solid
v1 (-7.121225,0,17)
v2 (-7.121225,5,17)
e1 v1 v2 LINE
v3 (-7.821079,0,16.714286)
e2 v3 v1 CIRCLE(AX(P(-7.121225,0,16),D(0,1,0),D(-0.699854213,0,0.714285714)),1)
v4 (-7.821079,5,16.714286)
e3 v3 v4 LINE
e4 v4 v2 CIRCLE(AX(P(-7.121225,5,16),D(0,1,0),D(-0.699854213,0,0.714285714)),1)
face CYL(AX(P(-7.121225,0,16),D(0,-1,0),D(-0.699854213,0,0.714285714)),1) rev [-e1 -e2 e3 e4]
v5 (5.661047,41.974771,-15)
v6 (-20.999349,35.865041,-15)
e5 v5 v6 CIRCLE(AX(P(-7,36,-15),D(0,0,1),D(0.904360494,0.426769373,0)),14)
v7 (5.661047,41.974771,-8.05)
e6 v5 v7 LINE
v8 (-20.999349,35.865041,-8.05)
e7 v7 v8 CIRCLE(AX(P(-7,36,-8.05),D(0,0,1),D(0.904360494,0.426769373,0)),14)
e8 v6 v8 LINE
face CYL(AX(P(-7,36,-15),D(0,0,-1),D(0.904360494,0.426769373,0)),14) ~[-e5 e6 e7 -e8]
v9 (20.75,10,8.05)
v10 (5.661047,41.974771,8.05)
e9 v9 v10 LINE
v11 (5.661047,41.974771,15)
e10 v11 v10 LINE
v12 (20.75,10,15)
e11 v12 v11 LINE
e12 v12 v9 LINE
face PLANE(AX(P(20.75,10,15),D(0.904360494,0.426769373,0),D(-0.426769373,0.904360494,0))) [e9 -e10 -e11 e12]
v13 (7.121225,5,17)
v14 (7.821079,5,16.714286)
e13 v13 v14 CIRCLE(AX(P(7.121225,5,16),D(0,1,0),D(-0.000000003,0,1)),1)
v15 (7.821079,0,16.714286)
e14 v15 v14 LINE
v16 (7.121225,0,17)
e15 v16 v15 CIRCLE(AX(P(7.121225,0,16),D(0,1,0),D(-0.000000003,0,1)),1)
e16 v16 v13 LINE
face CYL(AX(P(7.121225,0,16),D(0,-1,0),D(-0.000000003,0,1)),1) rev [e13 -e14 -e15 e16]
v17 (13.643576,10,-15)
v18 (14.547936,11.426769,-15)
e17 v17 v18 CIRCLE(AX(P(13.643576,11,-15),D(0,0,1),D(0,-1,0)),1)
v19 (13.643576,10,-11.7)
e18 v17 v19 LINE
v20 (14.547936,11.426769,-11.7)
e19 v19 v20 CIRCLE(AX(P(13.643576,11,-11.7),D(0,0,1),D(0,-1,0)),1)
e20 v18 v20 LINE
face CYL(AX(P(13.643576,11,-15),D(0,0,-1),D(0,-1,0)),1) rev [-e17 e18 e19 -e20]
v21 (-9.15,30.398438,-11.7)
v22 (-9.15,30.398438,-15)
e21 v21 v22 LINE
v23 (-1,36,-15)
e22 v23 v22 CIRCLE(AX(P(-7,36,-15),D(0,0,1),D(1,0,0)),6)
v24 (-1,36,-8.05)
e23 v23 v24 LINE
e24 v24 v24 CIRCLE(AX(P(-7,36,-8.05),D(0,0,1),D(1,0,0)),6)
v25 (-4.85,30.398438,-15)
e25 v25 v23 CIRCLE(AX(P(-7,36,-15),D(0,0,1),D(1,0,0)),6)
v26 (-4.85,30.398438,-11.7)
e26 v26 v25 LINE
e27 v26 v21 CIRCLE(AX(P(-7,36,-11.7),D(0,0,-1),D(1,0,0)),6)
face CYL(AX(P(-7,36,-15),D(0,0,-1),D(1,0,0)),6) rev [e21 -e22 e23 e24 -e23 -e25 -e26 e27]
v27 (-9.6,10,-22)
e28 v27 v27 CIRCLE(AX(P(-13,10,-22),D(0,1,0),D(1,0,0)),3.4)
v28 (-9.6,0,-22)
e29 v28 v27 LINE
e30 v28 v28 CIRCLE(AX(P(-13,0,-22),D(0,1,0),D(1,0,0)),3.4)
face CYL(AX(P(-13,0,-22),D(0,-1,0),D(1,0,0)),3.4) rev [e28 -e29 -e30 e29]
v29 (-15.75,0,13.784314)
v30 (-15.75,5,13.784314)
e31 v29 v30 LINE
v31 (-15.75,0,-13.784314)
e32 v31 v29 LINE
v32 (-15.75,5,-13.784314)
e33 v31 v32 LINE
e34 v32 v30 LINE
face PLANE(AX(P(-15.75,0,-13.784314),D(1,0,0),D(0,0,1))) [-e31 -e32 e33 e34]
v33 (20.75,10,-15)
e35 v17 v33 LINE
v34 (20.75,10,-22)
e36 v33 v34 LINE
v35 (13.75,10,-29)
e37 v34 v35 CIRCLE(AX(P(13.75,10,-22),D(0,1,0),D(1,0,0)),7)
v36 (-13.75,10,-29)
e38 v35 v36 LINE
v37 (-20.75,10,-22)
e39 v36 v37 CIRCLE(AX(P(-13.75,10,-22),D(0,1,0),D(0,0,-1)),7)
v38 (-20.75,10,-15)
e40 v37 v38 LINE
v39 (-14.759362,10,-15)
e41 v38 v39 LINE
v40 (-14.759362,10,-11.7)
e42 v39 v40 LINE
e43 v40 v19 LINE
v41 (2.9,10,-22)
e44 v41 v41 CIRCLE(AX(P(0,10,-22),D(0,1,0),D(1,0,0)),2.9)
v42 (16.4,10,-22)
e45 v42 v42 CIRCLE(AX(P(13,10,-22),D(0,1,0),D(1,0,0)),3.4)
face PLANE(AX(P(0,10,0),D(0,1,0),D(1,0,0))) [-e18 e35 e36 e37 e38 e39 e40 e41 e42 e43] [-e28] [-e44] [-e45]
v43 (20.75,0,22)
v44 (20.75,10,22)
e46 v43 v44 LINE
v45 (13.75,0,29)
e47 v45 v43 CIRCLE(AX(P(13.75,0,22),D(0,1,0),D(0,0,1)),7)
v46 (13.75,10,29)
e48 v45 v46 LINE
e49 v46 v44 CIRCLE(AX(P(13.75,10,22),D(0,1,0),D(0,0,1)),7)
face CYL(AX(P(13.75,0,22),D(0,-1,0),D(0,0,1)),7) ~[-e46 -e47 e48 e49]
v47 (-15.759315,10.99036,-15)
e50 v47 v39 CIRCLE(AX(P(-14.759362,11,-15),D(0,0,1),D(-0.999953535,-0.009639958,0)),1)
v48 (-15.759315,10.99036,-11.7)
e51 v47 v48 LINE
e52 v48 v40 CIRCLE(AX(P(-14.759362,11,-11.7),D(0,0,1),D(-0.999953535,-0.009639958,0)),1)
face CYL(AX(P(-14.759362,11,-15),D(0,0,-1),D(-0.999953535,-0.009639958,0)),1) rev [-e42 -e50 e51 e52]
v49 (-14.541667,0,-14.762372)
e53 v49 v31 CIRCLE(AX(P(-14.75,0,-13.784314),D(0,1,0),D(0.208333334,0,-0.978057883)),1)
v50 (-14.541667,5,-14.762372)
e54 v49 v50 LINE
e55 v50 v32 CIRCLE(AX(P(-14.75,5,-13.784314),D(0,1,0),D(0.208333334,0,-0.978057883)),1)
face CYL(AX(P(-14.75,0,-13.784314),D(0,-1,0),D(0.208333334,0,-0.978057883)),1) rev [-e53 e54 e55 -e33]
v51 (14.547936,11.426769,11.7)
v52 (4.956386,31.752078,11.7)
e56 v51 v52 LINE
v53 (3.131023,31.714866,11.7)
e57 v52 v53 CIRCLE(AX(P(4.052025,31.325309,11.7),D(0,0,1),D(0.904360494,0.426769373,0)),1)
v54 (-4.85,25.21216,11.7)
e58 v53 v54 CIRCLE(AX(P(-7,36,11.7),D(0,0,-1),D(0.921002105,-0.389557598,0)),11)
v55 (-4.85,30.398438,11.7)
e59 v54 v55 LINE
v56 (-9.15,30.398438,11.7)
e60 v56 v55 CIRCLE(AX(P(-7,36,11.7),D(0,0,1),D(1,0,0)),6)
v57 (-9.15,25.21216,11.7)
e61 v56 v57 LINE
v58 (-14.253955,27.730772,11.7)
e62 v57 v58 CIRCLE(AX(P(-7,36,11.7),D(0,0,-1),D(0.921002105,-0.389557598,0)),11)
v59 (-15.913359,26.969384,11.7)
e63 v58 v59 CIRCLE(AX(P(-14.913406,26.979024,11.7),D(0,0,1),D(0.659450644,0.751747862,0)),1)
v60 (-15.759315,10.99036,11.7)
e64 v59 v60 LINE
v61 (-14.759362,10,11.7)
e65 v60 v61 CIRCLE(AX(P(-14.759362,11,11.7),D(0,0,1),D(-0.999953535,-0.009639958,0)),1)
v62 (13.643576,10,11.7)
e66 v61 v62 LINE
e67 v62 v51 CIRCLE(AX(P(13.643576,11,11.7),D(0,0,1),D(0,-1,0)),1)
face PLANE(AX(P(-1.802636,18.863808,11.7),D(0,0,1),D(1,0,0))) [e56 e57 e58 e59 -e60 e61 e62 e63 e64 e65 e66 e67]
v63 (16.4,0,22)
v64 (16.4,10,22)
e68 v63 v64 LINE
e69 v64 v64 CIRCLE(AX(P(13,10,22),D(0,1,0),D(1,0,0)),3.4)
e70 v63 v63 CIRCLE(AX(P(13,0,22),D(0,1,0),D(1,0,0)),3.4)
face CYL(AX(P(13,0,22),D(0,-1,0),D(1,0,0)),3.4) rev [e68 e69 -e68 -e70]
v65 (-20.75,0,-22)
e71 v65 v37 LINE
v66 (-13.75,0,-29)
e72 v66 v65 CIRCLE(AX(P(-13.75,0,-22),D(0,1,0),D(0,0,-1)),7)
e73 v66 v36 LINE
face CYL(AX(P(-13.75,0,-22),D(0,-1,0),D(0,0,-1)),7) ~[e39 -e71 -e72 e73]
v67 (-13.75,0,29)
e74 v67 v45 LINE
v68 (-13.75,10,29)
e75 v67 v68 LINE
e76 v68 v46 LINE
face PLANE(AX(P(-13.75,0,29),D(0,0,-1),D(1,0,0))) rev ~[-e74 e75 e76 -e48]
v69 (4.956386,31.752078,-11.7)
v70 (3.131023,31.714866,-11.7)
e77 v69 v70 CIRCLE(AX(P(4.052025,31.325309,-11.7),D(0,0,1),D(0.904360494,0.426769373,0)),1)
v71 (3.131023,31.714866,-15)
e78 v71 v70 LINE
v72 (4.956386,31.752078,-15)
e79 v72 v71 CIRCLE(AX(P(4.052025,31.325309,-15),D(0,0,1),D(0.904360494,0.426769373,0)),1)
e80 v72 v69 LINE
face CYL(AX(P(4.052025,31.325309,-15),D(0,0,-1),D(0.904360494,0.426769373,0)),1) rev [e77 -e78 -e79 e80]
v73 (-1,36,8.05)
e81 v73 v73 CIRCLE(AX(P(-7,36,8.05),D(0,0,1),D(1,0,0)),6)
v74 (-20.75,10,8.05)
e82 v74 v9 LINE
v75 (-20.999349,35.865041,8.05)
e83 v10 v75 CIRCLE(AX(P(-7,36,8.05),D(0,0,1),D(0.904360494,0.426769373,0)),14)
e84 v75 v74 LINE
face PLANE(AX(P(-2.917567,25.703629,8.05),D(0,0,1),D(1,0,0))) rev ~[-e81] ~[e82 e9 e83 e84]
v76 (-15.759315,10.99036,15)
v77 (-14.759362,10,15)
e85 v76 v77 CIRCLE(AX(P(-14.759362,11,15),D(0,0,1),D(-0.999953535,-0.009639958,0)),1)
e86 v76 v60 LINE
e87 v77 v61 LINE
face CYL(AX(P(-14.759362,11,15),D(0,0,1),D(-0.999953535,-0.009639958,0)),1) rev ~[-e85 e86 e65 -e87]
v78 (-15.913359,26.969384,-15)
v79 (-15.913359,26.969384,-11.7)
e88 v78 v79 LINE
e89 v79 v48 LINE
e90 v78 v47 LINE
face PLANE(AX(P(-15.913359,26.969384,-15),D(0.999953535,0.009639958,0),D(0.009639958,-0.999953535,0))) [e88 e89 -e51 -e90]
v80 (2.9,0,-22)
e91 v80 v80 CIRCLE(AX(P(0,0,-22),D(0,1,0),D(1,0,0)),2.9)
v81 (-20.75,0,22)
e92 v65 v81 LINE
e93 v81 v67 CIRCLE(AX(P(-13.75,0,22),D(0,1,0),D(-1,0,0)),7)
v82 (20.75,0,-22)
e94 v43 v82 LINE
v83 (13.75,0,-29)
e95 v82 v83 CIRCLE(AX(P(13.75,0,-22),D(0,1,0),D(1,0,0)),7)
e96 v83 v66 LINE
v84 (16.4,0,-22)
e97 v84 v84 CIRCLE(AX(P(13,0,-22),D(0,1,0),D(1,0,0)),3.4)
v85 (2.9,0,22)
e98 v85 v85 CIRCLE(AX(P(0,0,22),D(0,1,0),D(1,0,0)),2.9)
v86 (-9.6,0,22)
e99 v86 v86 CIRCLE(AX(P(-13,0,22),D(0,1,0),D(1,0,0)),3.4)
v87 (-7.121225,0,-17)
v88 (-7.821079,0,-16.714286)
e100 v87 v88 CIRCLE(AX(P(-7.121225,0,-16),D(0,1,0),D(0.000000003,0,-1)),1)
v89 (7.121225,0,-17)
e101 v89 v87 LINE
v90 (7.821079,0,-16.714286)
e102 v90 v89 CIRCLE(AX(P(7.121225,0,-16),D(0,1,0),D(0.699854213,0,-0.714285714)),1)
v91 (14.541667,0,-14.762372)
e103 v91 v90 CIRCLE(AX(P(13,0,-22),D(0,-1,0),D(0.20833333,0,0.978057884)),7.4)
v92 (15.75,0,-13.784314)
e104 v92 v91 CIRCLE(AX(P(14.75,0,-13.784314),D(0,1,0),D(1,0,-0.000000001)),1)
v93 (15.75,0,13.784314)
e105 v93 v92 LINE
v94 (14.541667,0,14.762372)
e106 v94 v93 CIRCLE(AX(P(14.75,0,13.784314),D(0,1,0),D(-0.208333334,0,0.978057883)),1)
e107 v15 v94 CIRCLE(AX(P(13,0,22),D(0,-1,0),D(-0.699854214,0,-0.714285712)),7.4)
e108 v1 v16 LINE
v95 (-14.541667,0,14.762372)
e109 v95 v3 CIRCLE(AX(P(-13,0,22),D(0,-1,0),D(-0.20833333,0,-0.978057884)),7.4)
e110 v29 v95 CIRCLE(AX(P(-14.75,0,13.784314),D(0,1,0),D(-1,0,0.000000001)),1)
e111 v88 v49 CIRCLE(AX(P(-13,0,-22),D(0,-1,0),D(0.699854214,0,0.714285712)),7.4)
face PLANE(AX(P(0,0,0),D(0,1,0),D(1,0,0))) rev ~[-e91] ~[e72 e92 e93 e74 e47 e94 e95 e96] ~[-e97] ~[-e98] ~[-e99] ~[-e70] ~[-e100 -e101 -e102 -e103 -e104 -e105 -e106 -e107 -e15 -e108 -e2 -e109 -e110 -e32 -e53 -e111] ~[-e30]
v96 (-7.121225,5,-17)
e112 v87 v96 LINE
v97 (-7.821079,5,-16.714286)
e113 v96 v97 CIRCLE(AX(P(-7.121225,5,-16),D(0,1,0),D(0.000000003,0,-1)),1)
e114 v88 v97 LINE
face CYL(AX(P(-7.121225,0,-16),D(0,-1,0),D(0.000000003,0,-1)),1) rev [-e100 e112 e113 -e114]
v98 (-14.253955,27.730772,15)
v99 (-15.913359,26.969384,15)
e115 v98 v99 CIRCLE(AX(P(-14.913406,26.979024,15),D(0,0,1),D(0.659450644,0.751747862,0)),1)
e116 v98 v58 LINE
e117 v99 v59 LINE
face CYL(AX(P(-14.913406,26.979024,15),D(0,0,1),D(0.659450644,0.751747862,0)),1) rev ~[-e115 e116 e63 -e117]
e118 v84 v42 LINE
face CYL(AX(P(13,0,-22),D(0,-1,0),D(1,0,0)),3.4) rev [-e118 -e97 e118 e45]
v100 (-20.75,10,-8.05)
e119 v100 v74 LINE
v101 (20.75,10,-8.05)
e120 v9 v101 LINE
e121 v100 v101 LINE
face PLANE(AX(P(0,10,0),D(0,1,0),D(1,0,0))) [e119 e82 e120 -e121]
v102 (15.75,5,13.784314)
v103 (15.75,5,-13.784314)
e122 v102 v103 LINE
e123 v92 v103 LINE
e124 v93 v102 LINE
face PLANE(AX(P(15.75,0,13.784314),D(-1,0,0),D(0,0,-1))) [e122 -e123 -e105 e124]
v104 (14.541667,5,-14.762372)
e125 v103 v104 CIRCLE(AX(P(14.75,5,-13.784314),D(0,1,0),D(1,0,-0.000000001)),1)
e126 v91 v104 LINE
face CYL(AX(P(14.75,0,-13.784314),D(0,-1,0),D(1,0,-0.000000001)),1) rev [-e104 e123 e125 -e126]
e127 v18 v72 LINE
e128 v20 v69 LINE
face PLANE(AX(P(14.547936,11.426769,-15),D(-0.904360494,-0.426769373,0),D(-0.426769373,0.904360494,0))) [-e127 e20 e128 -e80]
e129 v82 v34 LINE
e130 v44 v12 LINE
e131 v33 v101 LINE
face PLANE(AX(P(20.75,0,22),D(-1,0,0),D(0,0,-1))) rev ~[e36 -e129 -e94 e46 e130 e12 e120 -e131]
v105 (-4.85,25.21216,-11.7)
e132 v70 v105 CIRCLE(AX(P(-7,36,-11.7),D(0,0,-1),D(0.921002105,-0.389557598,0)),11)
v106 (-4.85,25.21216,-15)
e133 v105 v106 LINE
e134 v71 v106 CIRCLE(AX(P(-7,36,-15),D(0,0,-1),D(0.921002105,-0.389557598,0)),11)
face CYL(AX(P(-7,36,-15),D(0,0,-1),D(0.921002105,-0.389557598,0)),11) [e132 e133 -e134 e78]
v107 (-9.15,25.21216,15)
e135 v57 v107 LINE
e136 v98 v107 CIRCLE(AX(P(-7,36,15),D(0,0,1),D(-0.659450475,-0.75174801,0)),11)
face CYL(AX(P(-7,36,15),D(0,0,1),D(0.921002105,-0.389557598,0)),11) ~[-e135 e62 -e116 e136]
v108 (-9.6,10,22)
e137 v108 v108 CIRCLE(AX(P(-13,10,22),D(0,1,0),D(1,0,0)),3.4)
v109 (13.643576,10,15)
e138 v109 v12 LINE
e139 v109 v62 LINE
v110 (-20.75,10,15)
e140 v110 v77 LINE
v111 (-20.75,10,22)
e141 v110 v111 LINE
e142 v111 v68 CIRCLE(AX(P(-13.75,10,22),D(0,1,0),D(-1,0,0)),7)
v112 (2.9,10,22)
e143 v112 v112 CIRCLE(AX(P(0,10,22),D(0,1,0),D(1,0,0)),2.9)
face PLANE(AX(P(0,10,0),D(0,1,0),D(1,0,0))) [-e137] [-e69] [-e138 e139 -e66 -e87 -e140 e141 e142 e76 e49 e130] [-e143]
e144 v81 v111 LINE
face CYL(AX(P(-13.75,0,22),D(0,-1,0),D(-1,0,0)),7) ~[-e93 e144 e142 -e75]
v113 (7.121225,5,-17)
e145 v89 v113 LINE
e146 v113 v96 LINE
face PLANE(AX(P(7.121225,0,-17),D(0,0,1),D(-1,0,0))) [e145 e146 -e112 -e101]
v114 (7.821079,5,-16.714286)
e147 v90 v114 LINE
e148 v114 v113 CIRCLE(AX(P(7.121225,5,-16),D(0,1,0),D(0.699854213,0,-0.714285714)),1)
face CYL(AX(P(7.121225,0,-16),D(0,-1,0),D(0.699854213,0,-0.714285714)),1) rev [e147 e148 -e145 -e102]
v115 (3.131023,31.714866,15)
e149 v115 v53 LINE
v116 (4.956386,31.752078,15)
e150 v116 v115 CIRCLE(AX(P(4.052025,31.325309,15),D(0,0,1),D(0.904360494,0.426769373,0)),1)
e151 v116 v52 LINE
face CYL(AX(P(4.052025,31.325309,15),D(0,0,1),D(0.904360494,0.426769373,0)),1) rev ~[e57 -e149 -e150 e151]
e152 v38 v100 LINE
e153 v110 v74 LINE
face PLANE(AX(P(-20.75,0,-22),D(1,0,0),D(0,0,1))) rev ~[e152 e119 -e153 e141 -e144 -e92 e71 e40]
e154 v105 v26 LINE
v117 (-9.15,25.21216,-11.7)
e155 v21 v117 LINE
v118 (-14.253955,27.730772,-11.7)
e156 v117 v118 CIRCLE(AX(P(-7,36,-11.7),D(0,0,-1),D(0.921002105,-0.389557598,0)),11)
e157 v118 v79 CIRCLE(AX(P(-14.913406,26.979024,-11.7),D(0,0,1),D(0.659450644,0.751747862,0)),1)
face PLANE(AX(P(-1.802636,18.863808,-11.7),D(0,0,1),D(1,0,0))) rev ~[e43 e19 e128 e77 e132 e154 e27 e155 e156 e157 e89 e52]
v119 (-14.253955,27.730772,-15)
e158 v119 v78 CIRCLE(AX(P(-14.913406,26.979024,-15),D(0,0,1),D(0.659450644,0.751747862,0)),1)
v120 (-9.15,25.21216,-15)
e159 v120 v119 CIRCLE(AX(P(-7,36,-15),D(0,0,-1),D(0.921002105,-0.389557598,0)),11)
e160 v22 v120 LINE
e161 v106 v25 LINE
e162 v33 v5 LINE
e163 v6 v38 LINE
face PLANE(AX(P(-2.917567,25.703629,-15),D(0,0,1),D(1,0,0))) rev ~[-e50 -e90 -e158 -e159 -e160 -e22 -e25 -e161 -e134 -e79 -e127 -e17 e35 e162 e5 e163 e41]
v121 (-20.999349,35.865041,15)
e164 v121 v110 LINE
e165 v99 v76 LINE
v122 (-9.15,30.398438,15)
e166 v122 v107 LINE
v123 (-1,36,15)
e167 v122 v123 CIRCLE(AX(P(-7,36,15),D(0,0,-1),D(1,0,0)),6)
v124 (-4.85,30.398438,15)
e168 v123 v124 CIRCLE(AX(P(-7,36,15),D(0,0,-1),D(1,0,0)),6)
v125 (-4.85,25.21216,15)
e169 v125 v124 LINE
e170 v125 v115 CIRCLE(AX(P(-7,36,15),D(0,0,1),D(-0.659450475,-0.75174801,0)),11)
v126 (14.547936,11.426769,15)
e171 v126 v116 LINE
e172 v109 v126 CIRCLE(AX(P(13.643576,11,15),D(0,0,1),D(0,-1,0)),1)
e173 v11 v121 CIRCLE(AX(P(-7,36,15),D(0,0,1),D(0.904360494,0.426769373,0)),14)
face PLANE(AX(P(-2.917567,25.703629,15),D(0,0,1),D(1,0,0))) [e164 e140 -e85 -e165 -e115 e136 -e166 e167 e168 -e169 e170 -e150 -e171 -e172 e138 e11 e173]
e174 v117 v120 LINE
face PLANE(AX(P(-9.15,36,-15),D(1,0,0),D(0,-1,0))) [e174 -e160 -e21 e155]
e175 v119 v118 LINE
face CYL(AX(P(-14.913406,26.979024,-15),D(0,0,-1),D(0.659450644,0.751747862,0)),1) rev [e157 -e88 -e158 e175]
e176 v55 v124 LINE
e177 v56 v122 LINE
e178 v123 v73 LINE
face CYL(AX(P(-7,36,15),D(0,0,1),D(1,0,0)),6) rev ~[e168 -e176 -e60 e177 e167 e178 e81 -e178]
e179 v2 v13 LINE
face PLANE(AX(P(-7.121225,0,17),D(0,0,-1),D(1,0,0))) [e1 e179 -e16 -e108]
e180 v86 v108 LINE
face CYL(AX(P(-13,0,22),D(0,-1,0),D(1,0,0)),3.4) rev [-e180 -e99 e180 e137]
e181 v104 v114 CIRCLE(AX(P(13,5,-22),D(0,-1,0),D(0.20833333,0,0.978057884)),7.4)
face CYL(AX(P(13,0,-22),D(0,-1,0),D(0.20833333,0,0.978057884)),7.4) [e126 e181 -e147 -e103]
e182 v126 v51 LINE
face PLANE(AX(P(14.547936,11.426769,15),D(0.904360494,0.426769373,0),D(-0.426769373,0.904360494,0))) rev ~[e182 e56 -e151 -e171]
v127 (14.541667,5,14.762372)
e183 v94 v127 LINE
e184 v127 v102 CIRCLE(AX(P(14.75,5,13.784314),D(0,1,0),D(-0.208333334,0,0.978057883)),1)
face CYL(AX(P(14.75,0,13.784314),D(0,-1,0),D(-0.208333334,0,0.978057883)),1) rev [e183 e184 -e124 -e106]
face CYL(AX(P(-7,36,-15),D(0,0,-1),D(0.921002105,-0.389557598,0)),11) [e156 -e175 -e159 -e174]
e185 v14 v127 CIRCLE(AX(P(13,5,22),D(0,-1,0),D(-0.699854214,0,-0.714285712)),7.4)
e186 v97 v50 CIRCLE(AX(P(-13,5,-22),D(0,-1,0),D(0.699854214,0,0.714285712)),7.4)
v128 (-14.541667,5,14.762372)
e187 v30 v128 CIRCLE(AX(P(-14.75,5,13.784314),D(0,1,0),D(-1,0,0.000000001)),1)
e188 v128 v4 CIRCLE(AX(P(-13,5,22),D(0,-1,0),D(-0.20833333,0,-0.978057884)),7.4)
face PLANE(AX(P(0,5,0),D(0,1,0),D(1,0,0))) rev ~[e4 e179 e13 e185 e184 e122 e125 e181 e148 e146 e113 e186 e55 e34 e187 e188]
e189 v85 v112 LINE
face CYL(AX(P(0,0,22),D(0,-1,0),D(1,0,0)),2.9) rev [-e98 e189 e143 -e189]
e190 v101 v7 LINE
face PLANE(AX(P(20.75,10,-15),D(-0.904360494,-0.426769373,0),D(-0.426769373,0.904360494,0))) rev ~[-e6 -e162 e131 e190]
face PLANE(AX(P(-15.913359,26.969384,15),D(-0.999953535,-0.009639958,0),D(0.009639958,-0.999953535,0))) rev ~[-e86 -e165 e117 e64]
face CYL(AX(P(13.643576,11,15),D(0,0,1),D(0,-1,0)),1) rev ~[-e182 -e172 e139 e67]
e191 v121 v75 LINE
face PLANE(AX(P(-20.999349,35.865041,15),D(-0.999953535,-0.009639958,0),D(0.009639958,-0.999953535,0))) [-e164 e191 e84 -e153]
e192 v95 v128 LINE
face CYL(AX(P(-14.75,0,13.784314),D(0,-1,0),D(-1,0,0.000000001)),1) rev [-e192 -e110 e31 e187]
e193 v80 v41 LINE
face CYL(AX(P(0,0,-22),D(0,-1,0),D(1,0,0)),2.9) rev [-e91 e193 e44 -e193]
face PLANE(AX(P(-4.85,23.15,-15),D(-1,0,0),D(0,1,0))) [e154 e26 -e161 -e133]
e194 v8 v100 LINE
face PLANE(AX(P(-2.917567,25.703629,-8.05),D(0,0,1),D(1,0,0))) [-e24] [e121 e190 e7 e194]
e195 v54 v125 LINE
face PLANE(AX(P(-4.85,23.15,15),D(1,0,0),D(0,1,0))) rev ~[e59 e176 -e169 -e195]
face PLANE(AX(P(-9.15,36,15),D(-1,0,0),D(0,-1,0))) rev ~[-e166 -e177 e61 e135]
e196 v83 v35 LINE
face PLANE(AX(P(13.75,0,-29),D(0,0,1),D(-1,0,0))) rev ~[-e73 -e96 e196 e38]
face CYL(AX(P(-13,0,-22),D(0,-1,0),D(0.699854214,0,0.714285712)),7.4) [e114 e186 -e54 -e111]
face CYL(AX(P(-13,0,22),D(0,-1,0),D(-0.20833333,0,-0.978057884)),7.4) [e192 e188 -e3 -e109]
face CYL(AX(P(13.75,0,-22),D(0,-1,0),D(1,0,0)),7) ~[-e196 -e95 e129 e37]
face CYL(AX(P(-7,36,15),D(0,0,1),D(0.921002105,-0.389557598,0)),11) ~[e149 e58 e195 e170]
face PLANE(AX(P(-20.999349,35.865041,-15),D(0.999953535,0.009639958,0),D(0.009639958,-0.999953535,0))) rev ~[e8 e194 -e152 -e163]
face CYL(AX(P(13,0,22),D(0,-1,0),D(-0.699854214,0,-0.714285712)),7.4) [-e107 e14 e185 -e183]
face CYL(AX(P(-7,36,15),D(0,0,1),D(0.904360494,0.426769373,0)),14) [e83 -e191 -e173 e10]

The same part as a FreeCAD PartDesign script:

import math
import FreeCAD as App
import Part
import Sketcher
Q = App.Units.Quantity

doc = App.newDocument("Part")
params = doc.addObject("Spreadsheet::Sheet", "Params")
for row, (alias, value) in enumerate([
    ("sketch1_radius", "7 mm"),
    ("sketch1_diameter", "6.8 mm"),
    ("sketch1_diameter2", "5.8 mm"),
    ("sketch1_height", "44 mm"),
    ("sketch1_width", "27.5 mm"),
    ("pad1_length", "10 mm"),
    ("sketch2_radius", "1 mm"),
    ("sketch2_radius2", "7.4 mm"),
    ("pocket1_length", "5 mm"),
    ("sketch3_diameter", "12 mm"),
    ("sketch3_radius", "14 mm"),
    ("sketch3_width", "41.5 mm"),
    ("pad2_length", "6.95 mm"),
    ("sketch4_radius", "1 mm"),
    ("sketch4_radius2", "11 mm"),
    ("pocket2_length", "3.3 mm"),
    ("sketch5_diameter", "12 mm"),
    ("sketch5_radius", "14 mm"),
    ("sketch5_width", "41.5 mm"),
    ("pad3_length", "6.95 mm"),
    ("sketch6_radius", "1 mm"),
    ("sketch6_radius2", "11 mm"),
    ("pocket3_length", "3.3 mm"),
    ("sketch7_radius", "2.15 mm"),
    ("sketch7_height", "12.85 mm"),
    ("pocket4_length", "3.3 mm"),
    ("pocket4_length2", "3.3 mm"),
    ("sketch8_radius", "2.15 mm"),
    ("sketch8_height", "12.85 mm"),
    ("pocket5_length", "3.3 mm"),
    ("pocket5_length2", "3.3 mm"),
], start=1):
    params.set(f"A{row}", alias)
    params.set(f"B{row}", "=" + value)
    params.setAlias(f"B{row}", alias)

body = doc.addObject("PartDesign::Body", "Body")

# Sketch on XZ plane
sketch1 = body.newObject("Sketcher::SketchObject", "Sketch")
sketch1.AttachmentSupport = (doc.getObject("XZ_Plane"), [""])
sketch1.MapMode = "FlatFace"
sketch1.addGeometry([
    Part.LineSegment(App.Vector(-13.8, 29, 0), App.Vector(13.8, 29, 0)),  # 0
    Part.ArcOfCircle(Part.Circle(App.Vector(13.7, 22, 0), App.Vector(0, 0, 1), 7), math.radians(0), math.radians(90)),  # 1
    Part.LineSegment(App.Vector(20.8, 22, 0), App.Vector(20.8, -22, 0)),  # 2
    Part.ArcOfCircle(Part.Circle(App.Vector(13.7, -22, 0), App.Vector(0, 0, 1), 7), math.radians(-90), math.radians(0)),  # 3
    Part.LineSegment(App.Vector(13.8, -29, 0), App.Vector(-13.8, -29, 0)),  # 4
    Part.ArcOfCircle(Part.Circle(App.Vector(-13.7, -22, 0), App.Vector(0, 0, 1), 7), math.radians(-180), math.radians(-90)),  # 5
    Part.LineSegment(App.Vector(-20.8, -22, 0), App.Vector(-20.8, 22, 0)),  # 6
    Part.ArcOfCircle(Part.Circle(App.Vector(-13.7, 22, 0), App.Vector(0, 0, 1), 7), math.radians(90), math.radians(180)),  # 7
    Part.Circle(App.Vector(-13, 22, 0), App.Vector(0, 0, 1), 3.4),  # 8
    Part.Circle(App.Vector(0, 22, 0), App.Vector(0, 0, 1), 2.9),  # 9
    Part.Circle(App.Vector(13, 22, 0), App.Vector(0, 0, 1), 3.4),  # 10
    Part.Circle(App.Vector(-13, -22, 0), App.Vector(0, 0, 1), 3.4),  # 11
    Part.Circle(App.Vector(0, -22, 0), App.Vector(0, 0, 1), 2.9),  # 12
    Part.Circle(App.Vector(13, -22, 0), App.Vector(0, 0, 1), 3.4),  # 13
], False)
sketch1.addConstraint([
    Sketcher.Constraint("Tangent", 0, 2, 1, 2),
    Sketcher.Constraint("Tangent", 1, 1, 2, 1),
    Sketcher.Constraint("Tangent", 2, 2, 3, 2),
    Sketcher.Constraint("Tangent", 3, 1, 4, 1),
    Sketcher.Constraint("Tangent", 4, 2, 5, 2),
    Sketcher.Constraint("Tangent", 5, 1, 6, 1),
    Sketcher.Constraint("Tangent", 6, 2, 7, 2),
    Sketcher.Constraint("Tangent", 7, 1, 0, 1),
    Sketcher.Constraint("Horizontal", 0),
    Sketcher.Constraint("Vertical", 2),
    Sketcher.Constraint("Horizontal", 4),
    Sketcher.Constraint("Vertical", 6),
    Sketcher.Constraint("Equal", 1, 3),
    Sketcher.Constraint("Equal", 3, 5),
    Sketcher.Constraint("Equal", 5, 7),
    Sketcher.Constraint("Equal", 8, 10),
    Sketcher.Constraint("Equal", 10, 11),
    Sketcher.Constraint("Equal", 9, 12),
    Sketcher.Constraint("Equal", 11, 13),
    Sketcher.Constraint("Symmetric", 1, 3, 5, 3, -1, 1),
    Sketcher.Constraint("Symmetric", 10, 3, 11, 3, -1, 1),
    Sketcher.Constraint("Symmetric", 9, 3, 12, 3, -1, 1),
    Sketcher.Constraint("Symmetric", 8, 3, 13, 3, -1, 1),
    Sketcher.Constraint("Symmetric", 8, 3, 10, 3, -2),
    Sketcher.Constraint("PointOnObject", 9, 3, -2),
    Sketcher.Constraint("Horizontal", 7, 3, 8, 3),
    Sketcher.Constraint("Horizontal", 8, 3, 9, 3),
    Sketcher.Constraint("Radius", 1, Q("7 mm")),
    Sketcher.Constraint("Diameter", 8, Q("6.8 mm")),
    Sketcher.Constraint("Diameter", 9, Q("5.8 mm")),
    Sketcher.Constraint("DistanceY", 2, 2, 2, 1, Q("44 mm")),
    Sketcher.Constraint("DistanceX", 0, 1, 0, 2, Q("27.5 mm")),
    Sketcher.Constraint("DistanceX", 8, 3, -1, 1, Q("13 mm")),
])
sketch1.setExpression("Constraints[27]", "Params.sketch1_radius")
sketch1.setExpression("Constraints[28]", "Params.sketch1_diameter")
sketch1.setExpression("Constraints[29]", "Params.sketch1_diameter2")
sketch1.setExpression("Constraints[30]", "Params.sketch1_height")
sketch1.setExpression("Constraints[31]", "Params.sketch1_width")
pad1 = body.newObject("PartDesign::Pad", "Pad")
pad1.Profile = sketch1
pad1.setExpression("Length", "Params.pad1_length")
pad1.Reversed = True

# Sketch on XZ plane
sketch2 = body.newObject("Sketcher::SketchObject", "Sketch001")
sketch2.AttachmentSupport = (doc.getObject("XZ_Plane"), [""])
sketch2.MapMode = "FlatFace"
sketch2.addGeometry([
    Part.LineSegment(App.Vector(-7.1, 17, 0), App.Vector(7.1, 17, 0)),  # 0
    Part.ArcOfCircle(Part.Circle(App.Vector(7.1, 16, 0), App.Vector(0, 0, 1), 1), math.radians(46), math.radians(90)),  # 1
    Part.ArcOfCircle(Part.Circle(App.Vector(13, 22, 0), App.Vector(0, 0, 1), 7.4), math.radians(-134), math.radians(-78)),  # 2
    Part.ArcOfCircle(Part.Circle(App.Vector(14.8, 13.8, 0), App.Vector(0, 0, 1), 1), math.radians(0), math.radians(102)),  # 3
    Part.LineSegment(App.Vector(15.8, 13.8, 0), App.Vector(15.8, -13.8, 0)),  # 4
    Part.ArcOfCircle(Part.Circle(App.Vector(14.8, -13.8, 0), App.Vector(0, 0, 1), 1), math.radians(-102), math.radians(0)),  # 5
    Part.ArcOfCircle(Part.Circle(App.Vector(13, -22, 0), App.Vector(0, 0, 1), 7.4), math.radians(78), math.radians(134)),  # 6
    Part.ArcOfCircle(Part.Circle(App.Vector(7.1, -16, 0), App.Vector(0, 0, 1), 1), math.radians(-90), math.radians(-46)),  # 7
    Part.LineSegment(App.Vector(7.1, -17, 0), App.Vector(-7.1, -17, 0)),  # 8
    Part.ArcOfCircle(Part.Circle(App.Vector(-7.1, -16, 0), App.Vector(0, 0, 1), 1), math.radians(-134), math.radians(-90)),  # 9
    Part.ArcOfCircle(Part.Circle(App.Vector(-13, -22, 0), App.Vector(0, 0, 1), 7.4), math.radians(46), math.radians(102)),  # 10
    Part.ArcOfCircle(Part.Circle(App.Vector(-14.8, -13.8, 0), App.Vector(0, 0, 1), 1), math.radians(180), math.radians(282)),  # 11
    Part.LineSegment(App.Vector(-15.8, -13.8, 0), App.Vector(-15.8, 13.8, 0)),  # 12
    Part.ArcOfCircle(Part.Circle(App.Vector(-14.8, 13.8, 0), App.Vector(0, 0, 1), 1), math.radians(78), math.radians(180)),  # 13
    Part.ArcOfCircle(Part.Circle(App.Vector(-13, 22, 0), App.Vector(0, 0, 1), 7.4), math.radians(-102), math.radians(-46)),  # 14
    Part.ArcOfCircle(Part.Circle(App.Vector(-7.1, 16, 0), App.Vector(0, 0, 1), 1), math.radians(90), math.radians(134)),  # 15
], False)
sketch2.addConstraint([
    Sketcher.Constraint("Tangent", 0, 2, 1, 2),
    Sketcher.Constraint("Tangent", 1, 1, 2, 1),
    Sketcher.Constraint("Tangent", 2, 2, 3, 2),
    Sketcher.Constraint("Tangent", 3, 1, 4, 1),
    Sketcher.Constraint("Tangent", 4, 2, 5, 2),
    Sketcher.Constraint("Tangent", 5, 1, 6, 1),
    Sketcher.Constraint("Tangent", 6, 2, 7, 2),
    Sketcher.Constraint("Tangent", 7, 1, 8, 1),
    Sketcher.Constraint("Tangent", 8, 2, 9, 2),
    Sketcher.Constraint("Tangent", 9, 1, 10, 1),
    Sketcher.Constraint("Tangent", 10, 2, 11, 2),
    Sketcher.Constraint("Tangent", 11, 1, 12, 1),
    Sketcher.Constraint("Tangent", 12, 2, 13, 2),
    Sketcher.Constraint("Tangent", 13, 1, 14, 1),
    Sketcher.Constraint("Tangent", 14, 2, 15, 2),
    Sketcher.Constraint("Tangent", 15, 1, 0, 1),
    Sketcher.Constraint("Horizontal", 0),
    Sketcher.Constraint("Vertical", 4),
    Sketcher.Constraint("Horizontal", 8),
    Sketcher.Constraint("Vertical", 12),
    Sketcher.Constraint("Equal", 1, 3),
    Sketcher.Constraint("Equal", 3, 5),
    Sketcher.Constraint("Equal", 2, 6),
    Sketcher.Constraint("Equal", 5, 7),
    Sketcher.Constraint("Equal", 7, 9),
    Sketcher.Constraint("Equal", 6, 10),
    Sketcher.Constraint("Equal", 9, 11),
    Sketcher.Constraint("Equal", 11, 13),
    Sketcher.Constraint("Equal", 10, 14),
    Sketcher.Constraint("Equal", 13, 15),
    Sketcher.Constraint("Symmetric", 1, 3, 9, 3, -1, 1),
    Sketcher.Constraint("Symmetric", 3, 3, 11, 3, -1, 1),
    Sketcher.Constraint("Symmetric", 6, 3, 14, 3, -1, 1),
    Sketcher.Constraint("Symmetric", 6, 3, 10, 3, -2),
    Sketcher.Constraint("Radius", 1, Q("1 mm")),
    Sketcher.Constraint("Radius", 2, Q("7.4 mm")),
    Sketcher.Constraint("DistanceY", -1, 1, 1, 3, Q("16 mm")),
    Sketcher.Constraint("DistanceX", -1, 1, 2, 3, Q("13 mm")),
    Sketcher.Constraint("DistanceY", -1, 1, 2, 3, Q("22 mm")),
    Sketcher.Constraint("DistanceX", 11, 3, 5, 3, Q("29.5 mm")),
])
sketch2.setExpression("Constraints[34]", "Params.sketch2_radius")
sketch2.setExpression("Constraints[35]", "Params.sketch2_radius2")
pocket1 = body.newObject("PartDesign::Pocket", "Pocket")
pocket1.Profile = sketch2
pocket1.setExpression("Length", "Params.pocket1_length")

# Sketch on XY plane
sketch3 = body.newObject("Sketcher::SketchObject", "Sketch002")
sketch3.AttachmentSupport = (doc.getObject("XY_Plane"), [""])
sketch3.MapMode = "FlatFace"
sketch3.AttachmentOffset = App.Placement(App.Vector(0, 0, 15), App.Rotation())
sketch3.addGeometry([
    Part.LineSegment(App.Vector(-21, 36, 0), App.Vector(-21, 10, 0)),  # 0
    Part.LineSegment(App.Vector(-21, 10, 0), App.Vector(21, 10, 0)),  # 1
    Part.LineSegment(App.Vector(21, 10, 0), App.Vector(6, 42, 0)),  # 2
    Part.ArcOfCircle(Part.Circle(App.Vector(-7, 36, 0), App.Vector(0, 0, 1), 14), math.radians(25), math.radians(181)),  # 3
    Part.Circle(App.Vector(-7, 36, 0), App.Vector(0, 0, 1), 6),  # 4
], False)
sketch3.addConstraint([
    Sketcher.Constraint("Coincident", 0, 2, 1, 1),
    Sketcher.Constraint("Coincident", 1, 2, 2, 1),
    Sketcher.Constraint("Tangent", 2, 2, 3, 1),
    Sketcher.Constraint("Tangent", 3, 2, 0, 1),
    Sketcher.Constraint("Horizontal", 1),
    Sketcher.Constraint("Coincident", 4, 3, 3, 3),
    Sketcher.Constraint("Diameter", 4, Q("12 mm")),
    Sketcher.Constraint("Radius", 3, Q("14 mm")),
    Sketcher.Constraint("DistanceX", 1, 1, 1, 2, Q("41.5 mm")),
    Sketcher.Constraint("DistanceX", 3, 3, -1, 1, Q("7 mm")),
    Sketcher.Constraint("DistanceY", -1, 1, 3, 3, Q("36 mm")),
    Sketcher.Constraint("DistanceY", -1, 1, 0, 2, Q("10 mm")),
    Sketcher.Constraint("DistanceX", 0, 2, -1, 1, Q("20.75 mm")),
])
sketch3.setExpression("Constraints[6]", "Params.sketch3_diameter")
sketch3.setExpression("Constraints[7]", "Params.sketch3_radius")
sketch3.setExpression("Constraints[8]", "Params.sketch3_width")
pad2 = body.newObject("PartDesign::Pad", "Pad001")
pad2.Profile = sketch3
pad2.setExpression("Length", "Params.pad2_length")
pad2.Reversed = True

# Sketch on XY plane
sketch4 = body.newObject("Sketcher::SketchObject", "Sketch003")
sketch4.AttachmentSupport = (doc.getObject("XY_Plane"), [""])
sketch4.MapMode = "FlatFace"
sketch4.AttachmentOffset = App.Placement(App.Vector(0, 0, 15), App.Rotation())
sketch4.addGeometry([
    Part.LineSegment(App.Vector(-15.9, 27, 0), App.Vector(-15.8, 11, 0)),  # 0
    Part.ArcOfCircle(Part.Circle(App.Vector(-14.8, 11, 0), App.Vector(0, 0, 1), 1), math.radians(-179), math.radians(-90)),  # 1
    Part.LineSegment(App.Vector(-14.8, 10, 0), App.Vector(13.6, 10, 0)),  # 2
    Part.ArcOfCircle(Part.Circle(App.Vector(13.6, 11, 0), App.Vector(0, 0, 1), 1), math.radians(-90), math.radians(25)),  # 3
    Part.LineSegment(App.Vector(14.5, 11.4, 0), App.Vector(5, 31.8, 0)),  # 4
    Part.ArcOfCircle(Part.Circle(App.Vector(4.1, 31.3, 0), App.Vector(0, 0, 1), 1), math.radians(25), math.radians(157)),  # 5
    Part.ArcOfCircle(Part.Circle(App.Vector(-7, 36, 0), App.Vector(0, 0, 1), 11), math.radians(-131), math.radians(-23)),  # 6
    Part.ArcOfCircle(Part.Circle(App.Vector(-14.9, 27, 0), App.Vector(0, 0, 1), 1), math.radians(49), math.radians(181)),  # 7
], False)
sketch4.addConstraint([
    Sketcher.Constraint("Tangent", 0, 2, 1, 1),
    Sketcher.Constraint("Tangent", 1, 2, 2, 1),
    Sketcher.Constraint("Tangent", 2, 2, 3, 1),
    Sketcher.Constraint("Tangent", 3, 2, 4, 1),
    Sketcher.Constraint("Tangent", 4, 2, 5, 1),
    Sketcher.Constraint("Tangent", 5, 2, 6, 2),
    Sketcher.Constraint("Tangent", 6, 1, 7, 1),
    Sketcher.Constraint("Tangent", 7, 2, 0, 1),
    Sketcher.Constraint("Horizontal", 2),
    Sketcher.Constraint("Equal", 1, 3),
    Sketcher.Constraint("Equal", 3, 5),
    Sketcher.Constraint("Equal", 5, 7),
    Sketcher.Constraint("Radius", 1, Q("1 mm")),
    Sketcher.Constraint("Radius", 6, Q("11 mm")),
    Sketcher.Constraint("DistanceY", -1, 1, 1, 3, Q("11 mm")),
    Sketcher.Constraint("DistanceX", 6, 3, -1, 1, Q("7 mm")),
    Sketcher.Constraint("DistanceY", -1, 1, 6, 3, Q("36 mm")),
    Sketcher.Constraint("DistanceX", 2, 1, 2, 2, Q("28.402937 mm")),
    Sketcher.Constraint("DistanceX", 1, 3, -1, 1, Q("14.759362 mm")),
    Sketcher.Constraint("DistanceY", -1, 1, 5, 3, Q("31.325309 mm")),
    Sketcher.Constraint("DistanceY", -1, 1, 0, 2, Q("10.99036 mm")),
])
sketch4.setExpression("Constraints[12]", "Params.sketch4_radius")
sketch4.setExpression("Constraints[13]", "Params.sketch4_radius2")
pocket2 = body.newObject("PartDesign::Pocket", "Pocket001")
pocket2.Profile = sketch4
pocket2.setExpression("Length", "Params.pocket2_length")

# Sketch on XY plane
sketch5 = body.newObject("Sketcher::SketchObject", "Sketch004")
sketch5.AttachmentSupport = (doc.getObject("XY_Plane"), [""])
sketch5.MapMode = "FlatFace"
sketch5.AttachmentOffset = App.Placement(App.Vector(0, 0, -15), App.Rotation())
sketch5.addGeometry([
    Part.LineSegment(App.Vector(-21, 36, 0), App.Vector(-21, 10, 0)),  # 0
    Part.LineSegment(App.Vector(-21, 10, 0), App.Vector(21, 10, 0)),  # 1
    Part.LineSegment(App.Vector(21, 10, 0), App.Vector(6, 42, 0)),  # 2
    Part.ArcOfCircle(Part.Circle(App.Vector(-7, 36, 0), App.Vector(0, 0, 1), 14), math.radians(25), math.radians(181)),  # 3
    Part.Circle(App.Vector(-7, 36, 0), App.Vector(0, 0, 1), 6),  # 4
], False)
sketch5.addConstraint([
    Sketcher.Constraint("Coincident", 0, 2, 1, 1),
    Sketcher.Constraint("Coincident", 1, 2, 2, 1),
    Sketcher.Constraint("Tangent", 2, 2, 3, 1),
    Sketcher.Constraint("Tangent", 3, 2, 0, 1),
    Sketcher.Constraint("Horizontal", 1),
    Sketcher.Constraint("Coincident", 4, 3, 3, 3),
    Sketcher.Constraint("Diameter", 4, Q("12 mm")),
    Sketcher.Constraint("Radius", 3, Q("14 mm")),
    Sketcher.Constraint("DistanceX", 1, 1, 1, 2, Q("41.5 mm")),
    Sketcher.Constraint("DistanceX", 3, 3, -1, 1, Q("7 mm")),
    Sketcher.Constraint("DistanceY", -1, 1, 3, 3, Q("36 mm")),
    Sketcher.Constraint("DistanceY", -1, 1, 0, 2, Q("10 mm")),
    Sketcher.Constraint("DistanceX", 0, 2, -1, 1, Q("20.75 mm")),
])
sketch5.setExpression("Constraints[6]", "Params.sketch5_diameter")
sketch5.setExpression("Constraints[7]", "Params.sketch5_radius")
sketch5.setExpression("Constraints[8]", "Params.sketch5_width")
pad3 = body.newObject("PartDesign::Pad", "Pad002")
pad3.Profile = sketch5
pad3.setExpression("Length", "Params.pad3_length")

# Sketch on XY plane
sketch6 = body.newObject("Sketcher::SketchObject", "Sketch005")
sketch6.AttachmentSupport = (doc.getObject("XY_Plane"), [""])
sketch6.MapMode = "FlatFace"
sketch6.AttachmentOffset = App.Placement(App.Vector(0, 0, -15), App.Rotation())
sketch6.addGeometry([
    Part.LineSegment(App.Vector(-15.9, 27, 0), App.Vector(-15.8, 11, 0)),  # 0
    Part.ArcOfCircle(Part.Circle(App.Vector(-14.8, 11, 0), App.Vector(0, 0, 1), 1), math.radians(-179), math.radians(-90)),  # 1
    Part.LineSegment(App.Vector(-14.8, 10, 0), App.Vector(13.6, 10, 0)),  # 2
    Part.ArcOfCircle(Part.Circle(App.Vector(13.6, 11, 0), App.Vector(0, 0, 1), 1), math.radians(-90), math.radians(25)),  # 3
    Part.LineSegment(App.Vector(14.5, 11.4, 0), App.Vector(5, 31.8, 0)),  # 4
    Part.ArcOfCircle(Part.Circle(App.Vector(4.1, 31.3, 0), App.Vector(0, 0, 1), 1), math.radians(25), math.radians(157)),  # 5
    Part.ArcOfCircle(Part.Circle(App.Vector(-7, 36, 0), App.Vector(0, 0, 1), 11), math.radians(-131), math.radians(-23)),  # 6
    Part.ArcOfCircle(Part.Circle(App.Vector(-14.9, 27, 0), App.Vector(0, 0, 1), 1), math.radians(49), math.radians(181)),  # 7
], False)
sketch6.addConstraint([
    Sketcher.Constraint("Tangent", 0, 2, 1, 1),
    Sketcher.Constraint("Tangent", 1, 2, 2, 1),
    Sketcher.Constraint("Tangent", 2, 2, 3, 1),
    Sketcher.Constraint("Tangent", 3, 2, 4, 1),
    Sketcher.Constraint("Tangent", 4, 2, 5, 1),
    Sketcher.Constraint("Tangent", 5, 2, 6, 2),
    Sketcher.Constraint("Tangent", 6, 1, 7, 1),
    Sketcher.Constraint("Tangent", 7, 2, 0, 1),
    Sketcher.Constraint("Horizontal", 2),
    Sketcher.Constraint("Equal", 1, 3),
    Sketcher.Constraint("Equal", 3, 5),
    Sketcher.Constraint("Equal", 5, 7),
    Sketcher.Constraint("Radius", 1, Q("1 mm")),
    Sketcher.Constraint("Radius", 6, Q("11 mm")),
    Sketcher.Constraint("DistanceY", -1, 1, 1, 3, Q("11 mm")),
    Sketcher.Constraint("DistanceX", 6, 3, -1, 1, Q("7 mm")),
    Sketcher.Constraint("DistanceY", -1, 1, 6, 3, Q("36 mm")),
    Sketcher.Constraint("DistanceX", 2, 1, 2, 2, Q("28.402937 mm")),
    Sketcher.Constraint("DistanceX", 1, 3, -1, 1, Q("14.759362 mm")),
    Sketcher.Constraint("DistanceY", -1, 1, 5, 3, Q("31.325309 mm")),
    Sketcher.Constraint("DistanceY", -1, 1, 0, 2, Q("10.99036 mm")),
])
sketch6.setExpression("Constraints[12]", "Params.sketch6_radius")
sketch6.setExpression("Constraints[13]", "Params.sketch6_radius2")
pocket3 = body.newObject("PartDesign::Pocket", "Pocket002")
pocket3.Profile = sketch6
pocket3.setExpression("Length", "Params.pocket3_length")
pocket3.Reversed = True

# Sketch on XY plane
sketch7 = body.newObject("Sketcher::SketchObject", "Sketch006")
sketch7.AttachmentSupport = (doc.getObject("XY_Plane"), [""])
sketch7.MapMode = "FlatFace"
sketch7.AttachmentOffset = App.Placement(App.Vector(0, 0, 15), App.Rotation())
sketch7.addGeometry([
    Part.LineSegment(App.Vector(-4.8, 23.1, 0), App.Vector(-4.8, 36, 0)),
    Part.LineSegment(App.Vector(-4.8, 36, 0), App.Vector(-9.2, 36, 0)),
    Part.LineSegment(App.Vector(-9.2, 36, 0), App.Vector(-9.2, 23.1, 0)),
    Part.ArcOfCircle(Part.Circle(App.Vector(-7, 23.1, 0), App.Vector(0, 0, 1), 2.1), math.radians(180), math.radians(360)),
], False)
sketch7.addConstraint([
    Sketcher.Constraint("Coincident", 0, 2, 1, 1),
    Sketcher.Constraint("Coincident", 1, 2, 2, 1),
    Sketcher.Constraint("Tangent", 2, 2, 3, 1),
    Sketcher.Constraint("Tangent", 3, 2, 0, 1),
    Sketcher.Constraint("Vertical", 0),
    Sketcher.Constraint("Horizontal", 1),
    Sketcher.Constraint("Vertical", 2),
    Sketcher.Constraint("Radius", 3, Q("2.15 mm")),
    Sketcher.Constraint("DistanceX", 3, 3, -1, 1, Q("7 mm")),
    Sketcher.Constraint("DistanceY", -1, 1, 0, 2, Q("36 mm")),
    Sketcher.Constraint("DistanceY", 0, 1, 0, 2, Q("12.85 mm")),
])
sketch7.setExpression("Constraints[7]", "Params.sketch7_radius")
sketch7.setExpression("Constraints[10]", "Params.sketch7_height")
pocket4 = body.newObject("PartDesign::Pocket", "Pocket003")
pocket4.Profile = sketch7
pocket4.Type = "TwoLengths"
pocket4.setExpression("Length", "Params.pocket4_length")
pocket4.setExpression("Length2", "Params.pocket4_length2")
pocket4.Reversed = True

# Sketch on XY plane
sketch8 = body.newObject("Sketcher::SketchObject", "Sketch007")
sketch8.AttachmentSupport = (doc.getObject("XY_Plane"), [""])
sketch8.MapMode = "FlatFace"
sketch8.AttachmentOffset = App.Placement(App.Vector(0, 0, -15), App.Rotation())
sketch8.addGeometry([
    Part.LineSegment(App.Vector(-4.8, 23.1, 0), App.Vector(-4.8, 36, 0)),
    Part.LineSegment(App.Vector(-4.8, 36, 0), App.Vector(-9.2, 36, 0)),
    Part.LineSegment(App.Vector(-9.2, 36, 0), App.Vector(-9.2, 23.1, 0)),
    Part.ArcOfCircle(Part.Circle(App.Vector(-7, 23.1, 0), App.Vector(0, 0, 1), 2.1), math.radians(180), math.radians(360)),
], False)
sketch8.addConstraint([
    Sketcher.Constraint("Coincident", 0, 2, 1, 1),
    Sketcher.Constraint("Coincident", 1, 2, 2, 1),
    Sketcher.Constraint("Tangent", 2, 2, 3, 1),
    Sketcher.Constraint("Tangent", 3, 2, 0, 1),
    Sketcher.Constraint("Vertical", 0),
    Sketcher.Constraint("Horizontal", 1),
    Sketcher.Constraint("Vertical", 2),
    Sketcher.Constraint("Radius", 3, Q("2.15 mm")),
    Sketcher.Constraint("DistanceX", 3, 3, -1, 1, Q("7 mm")),
    Sketcher.Constraint("DistanceY", -1, 1, 0, 2, Q("36 mm")),
    Sketcher.Constraint("DistanceY", 0, 1, 0, 2, Q("12.85 mm")),
])
sketch8.setExpression("Constraints[7]", "Params.sketch8_radius")
sketch8.setExpression("Constraints[10]", "Params.sketch8_height")
pocket5 = body.newObject("PartDesign::Pocket", "Pocket004")
pocket5.Profile = sketch8
pocket5.Type = "TwoLengths"
pocket5.setExpression("Length", "Params.pocket5_length")
pocket5.setExpression("Length2", "Params.pocket5_length2")
pocket5.Reversed = True

doc.recompute()
